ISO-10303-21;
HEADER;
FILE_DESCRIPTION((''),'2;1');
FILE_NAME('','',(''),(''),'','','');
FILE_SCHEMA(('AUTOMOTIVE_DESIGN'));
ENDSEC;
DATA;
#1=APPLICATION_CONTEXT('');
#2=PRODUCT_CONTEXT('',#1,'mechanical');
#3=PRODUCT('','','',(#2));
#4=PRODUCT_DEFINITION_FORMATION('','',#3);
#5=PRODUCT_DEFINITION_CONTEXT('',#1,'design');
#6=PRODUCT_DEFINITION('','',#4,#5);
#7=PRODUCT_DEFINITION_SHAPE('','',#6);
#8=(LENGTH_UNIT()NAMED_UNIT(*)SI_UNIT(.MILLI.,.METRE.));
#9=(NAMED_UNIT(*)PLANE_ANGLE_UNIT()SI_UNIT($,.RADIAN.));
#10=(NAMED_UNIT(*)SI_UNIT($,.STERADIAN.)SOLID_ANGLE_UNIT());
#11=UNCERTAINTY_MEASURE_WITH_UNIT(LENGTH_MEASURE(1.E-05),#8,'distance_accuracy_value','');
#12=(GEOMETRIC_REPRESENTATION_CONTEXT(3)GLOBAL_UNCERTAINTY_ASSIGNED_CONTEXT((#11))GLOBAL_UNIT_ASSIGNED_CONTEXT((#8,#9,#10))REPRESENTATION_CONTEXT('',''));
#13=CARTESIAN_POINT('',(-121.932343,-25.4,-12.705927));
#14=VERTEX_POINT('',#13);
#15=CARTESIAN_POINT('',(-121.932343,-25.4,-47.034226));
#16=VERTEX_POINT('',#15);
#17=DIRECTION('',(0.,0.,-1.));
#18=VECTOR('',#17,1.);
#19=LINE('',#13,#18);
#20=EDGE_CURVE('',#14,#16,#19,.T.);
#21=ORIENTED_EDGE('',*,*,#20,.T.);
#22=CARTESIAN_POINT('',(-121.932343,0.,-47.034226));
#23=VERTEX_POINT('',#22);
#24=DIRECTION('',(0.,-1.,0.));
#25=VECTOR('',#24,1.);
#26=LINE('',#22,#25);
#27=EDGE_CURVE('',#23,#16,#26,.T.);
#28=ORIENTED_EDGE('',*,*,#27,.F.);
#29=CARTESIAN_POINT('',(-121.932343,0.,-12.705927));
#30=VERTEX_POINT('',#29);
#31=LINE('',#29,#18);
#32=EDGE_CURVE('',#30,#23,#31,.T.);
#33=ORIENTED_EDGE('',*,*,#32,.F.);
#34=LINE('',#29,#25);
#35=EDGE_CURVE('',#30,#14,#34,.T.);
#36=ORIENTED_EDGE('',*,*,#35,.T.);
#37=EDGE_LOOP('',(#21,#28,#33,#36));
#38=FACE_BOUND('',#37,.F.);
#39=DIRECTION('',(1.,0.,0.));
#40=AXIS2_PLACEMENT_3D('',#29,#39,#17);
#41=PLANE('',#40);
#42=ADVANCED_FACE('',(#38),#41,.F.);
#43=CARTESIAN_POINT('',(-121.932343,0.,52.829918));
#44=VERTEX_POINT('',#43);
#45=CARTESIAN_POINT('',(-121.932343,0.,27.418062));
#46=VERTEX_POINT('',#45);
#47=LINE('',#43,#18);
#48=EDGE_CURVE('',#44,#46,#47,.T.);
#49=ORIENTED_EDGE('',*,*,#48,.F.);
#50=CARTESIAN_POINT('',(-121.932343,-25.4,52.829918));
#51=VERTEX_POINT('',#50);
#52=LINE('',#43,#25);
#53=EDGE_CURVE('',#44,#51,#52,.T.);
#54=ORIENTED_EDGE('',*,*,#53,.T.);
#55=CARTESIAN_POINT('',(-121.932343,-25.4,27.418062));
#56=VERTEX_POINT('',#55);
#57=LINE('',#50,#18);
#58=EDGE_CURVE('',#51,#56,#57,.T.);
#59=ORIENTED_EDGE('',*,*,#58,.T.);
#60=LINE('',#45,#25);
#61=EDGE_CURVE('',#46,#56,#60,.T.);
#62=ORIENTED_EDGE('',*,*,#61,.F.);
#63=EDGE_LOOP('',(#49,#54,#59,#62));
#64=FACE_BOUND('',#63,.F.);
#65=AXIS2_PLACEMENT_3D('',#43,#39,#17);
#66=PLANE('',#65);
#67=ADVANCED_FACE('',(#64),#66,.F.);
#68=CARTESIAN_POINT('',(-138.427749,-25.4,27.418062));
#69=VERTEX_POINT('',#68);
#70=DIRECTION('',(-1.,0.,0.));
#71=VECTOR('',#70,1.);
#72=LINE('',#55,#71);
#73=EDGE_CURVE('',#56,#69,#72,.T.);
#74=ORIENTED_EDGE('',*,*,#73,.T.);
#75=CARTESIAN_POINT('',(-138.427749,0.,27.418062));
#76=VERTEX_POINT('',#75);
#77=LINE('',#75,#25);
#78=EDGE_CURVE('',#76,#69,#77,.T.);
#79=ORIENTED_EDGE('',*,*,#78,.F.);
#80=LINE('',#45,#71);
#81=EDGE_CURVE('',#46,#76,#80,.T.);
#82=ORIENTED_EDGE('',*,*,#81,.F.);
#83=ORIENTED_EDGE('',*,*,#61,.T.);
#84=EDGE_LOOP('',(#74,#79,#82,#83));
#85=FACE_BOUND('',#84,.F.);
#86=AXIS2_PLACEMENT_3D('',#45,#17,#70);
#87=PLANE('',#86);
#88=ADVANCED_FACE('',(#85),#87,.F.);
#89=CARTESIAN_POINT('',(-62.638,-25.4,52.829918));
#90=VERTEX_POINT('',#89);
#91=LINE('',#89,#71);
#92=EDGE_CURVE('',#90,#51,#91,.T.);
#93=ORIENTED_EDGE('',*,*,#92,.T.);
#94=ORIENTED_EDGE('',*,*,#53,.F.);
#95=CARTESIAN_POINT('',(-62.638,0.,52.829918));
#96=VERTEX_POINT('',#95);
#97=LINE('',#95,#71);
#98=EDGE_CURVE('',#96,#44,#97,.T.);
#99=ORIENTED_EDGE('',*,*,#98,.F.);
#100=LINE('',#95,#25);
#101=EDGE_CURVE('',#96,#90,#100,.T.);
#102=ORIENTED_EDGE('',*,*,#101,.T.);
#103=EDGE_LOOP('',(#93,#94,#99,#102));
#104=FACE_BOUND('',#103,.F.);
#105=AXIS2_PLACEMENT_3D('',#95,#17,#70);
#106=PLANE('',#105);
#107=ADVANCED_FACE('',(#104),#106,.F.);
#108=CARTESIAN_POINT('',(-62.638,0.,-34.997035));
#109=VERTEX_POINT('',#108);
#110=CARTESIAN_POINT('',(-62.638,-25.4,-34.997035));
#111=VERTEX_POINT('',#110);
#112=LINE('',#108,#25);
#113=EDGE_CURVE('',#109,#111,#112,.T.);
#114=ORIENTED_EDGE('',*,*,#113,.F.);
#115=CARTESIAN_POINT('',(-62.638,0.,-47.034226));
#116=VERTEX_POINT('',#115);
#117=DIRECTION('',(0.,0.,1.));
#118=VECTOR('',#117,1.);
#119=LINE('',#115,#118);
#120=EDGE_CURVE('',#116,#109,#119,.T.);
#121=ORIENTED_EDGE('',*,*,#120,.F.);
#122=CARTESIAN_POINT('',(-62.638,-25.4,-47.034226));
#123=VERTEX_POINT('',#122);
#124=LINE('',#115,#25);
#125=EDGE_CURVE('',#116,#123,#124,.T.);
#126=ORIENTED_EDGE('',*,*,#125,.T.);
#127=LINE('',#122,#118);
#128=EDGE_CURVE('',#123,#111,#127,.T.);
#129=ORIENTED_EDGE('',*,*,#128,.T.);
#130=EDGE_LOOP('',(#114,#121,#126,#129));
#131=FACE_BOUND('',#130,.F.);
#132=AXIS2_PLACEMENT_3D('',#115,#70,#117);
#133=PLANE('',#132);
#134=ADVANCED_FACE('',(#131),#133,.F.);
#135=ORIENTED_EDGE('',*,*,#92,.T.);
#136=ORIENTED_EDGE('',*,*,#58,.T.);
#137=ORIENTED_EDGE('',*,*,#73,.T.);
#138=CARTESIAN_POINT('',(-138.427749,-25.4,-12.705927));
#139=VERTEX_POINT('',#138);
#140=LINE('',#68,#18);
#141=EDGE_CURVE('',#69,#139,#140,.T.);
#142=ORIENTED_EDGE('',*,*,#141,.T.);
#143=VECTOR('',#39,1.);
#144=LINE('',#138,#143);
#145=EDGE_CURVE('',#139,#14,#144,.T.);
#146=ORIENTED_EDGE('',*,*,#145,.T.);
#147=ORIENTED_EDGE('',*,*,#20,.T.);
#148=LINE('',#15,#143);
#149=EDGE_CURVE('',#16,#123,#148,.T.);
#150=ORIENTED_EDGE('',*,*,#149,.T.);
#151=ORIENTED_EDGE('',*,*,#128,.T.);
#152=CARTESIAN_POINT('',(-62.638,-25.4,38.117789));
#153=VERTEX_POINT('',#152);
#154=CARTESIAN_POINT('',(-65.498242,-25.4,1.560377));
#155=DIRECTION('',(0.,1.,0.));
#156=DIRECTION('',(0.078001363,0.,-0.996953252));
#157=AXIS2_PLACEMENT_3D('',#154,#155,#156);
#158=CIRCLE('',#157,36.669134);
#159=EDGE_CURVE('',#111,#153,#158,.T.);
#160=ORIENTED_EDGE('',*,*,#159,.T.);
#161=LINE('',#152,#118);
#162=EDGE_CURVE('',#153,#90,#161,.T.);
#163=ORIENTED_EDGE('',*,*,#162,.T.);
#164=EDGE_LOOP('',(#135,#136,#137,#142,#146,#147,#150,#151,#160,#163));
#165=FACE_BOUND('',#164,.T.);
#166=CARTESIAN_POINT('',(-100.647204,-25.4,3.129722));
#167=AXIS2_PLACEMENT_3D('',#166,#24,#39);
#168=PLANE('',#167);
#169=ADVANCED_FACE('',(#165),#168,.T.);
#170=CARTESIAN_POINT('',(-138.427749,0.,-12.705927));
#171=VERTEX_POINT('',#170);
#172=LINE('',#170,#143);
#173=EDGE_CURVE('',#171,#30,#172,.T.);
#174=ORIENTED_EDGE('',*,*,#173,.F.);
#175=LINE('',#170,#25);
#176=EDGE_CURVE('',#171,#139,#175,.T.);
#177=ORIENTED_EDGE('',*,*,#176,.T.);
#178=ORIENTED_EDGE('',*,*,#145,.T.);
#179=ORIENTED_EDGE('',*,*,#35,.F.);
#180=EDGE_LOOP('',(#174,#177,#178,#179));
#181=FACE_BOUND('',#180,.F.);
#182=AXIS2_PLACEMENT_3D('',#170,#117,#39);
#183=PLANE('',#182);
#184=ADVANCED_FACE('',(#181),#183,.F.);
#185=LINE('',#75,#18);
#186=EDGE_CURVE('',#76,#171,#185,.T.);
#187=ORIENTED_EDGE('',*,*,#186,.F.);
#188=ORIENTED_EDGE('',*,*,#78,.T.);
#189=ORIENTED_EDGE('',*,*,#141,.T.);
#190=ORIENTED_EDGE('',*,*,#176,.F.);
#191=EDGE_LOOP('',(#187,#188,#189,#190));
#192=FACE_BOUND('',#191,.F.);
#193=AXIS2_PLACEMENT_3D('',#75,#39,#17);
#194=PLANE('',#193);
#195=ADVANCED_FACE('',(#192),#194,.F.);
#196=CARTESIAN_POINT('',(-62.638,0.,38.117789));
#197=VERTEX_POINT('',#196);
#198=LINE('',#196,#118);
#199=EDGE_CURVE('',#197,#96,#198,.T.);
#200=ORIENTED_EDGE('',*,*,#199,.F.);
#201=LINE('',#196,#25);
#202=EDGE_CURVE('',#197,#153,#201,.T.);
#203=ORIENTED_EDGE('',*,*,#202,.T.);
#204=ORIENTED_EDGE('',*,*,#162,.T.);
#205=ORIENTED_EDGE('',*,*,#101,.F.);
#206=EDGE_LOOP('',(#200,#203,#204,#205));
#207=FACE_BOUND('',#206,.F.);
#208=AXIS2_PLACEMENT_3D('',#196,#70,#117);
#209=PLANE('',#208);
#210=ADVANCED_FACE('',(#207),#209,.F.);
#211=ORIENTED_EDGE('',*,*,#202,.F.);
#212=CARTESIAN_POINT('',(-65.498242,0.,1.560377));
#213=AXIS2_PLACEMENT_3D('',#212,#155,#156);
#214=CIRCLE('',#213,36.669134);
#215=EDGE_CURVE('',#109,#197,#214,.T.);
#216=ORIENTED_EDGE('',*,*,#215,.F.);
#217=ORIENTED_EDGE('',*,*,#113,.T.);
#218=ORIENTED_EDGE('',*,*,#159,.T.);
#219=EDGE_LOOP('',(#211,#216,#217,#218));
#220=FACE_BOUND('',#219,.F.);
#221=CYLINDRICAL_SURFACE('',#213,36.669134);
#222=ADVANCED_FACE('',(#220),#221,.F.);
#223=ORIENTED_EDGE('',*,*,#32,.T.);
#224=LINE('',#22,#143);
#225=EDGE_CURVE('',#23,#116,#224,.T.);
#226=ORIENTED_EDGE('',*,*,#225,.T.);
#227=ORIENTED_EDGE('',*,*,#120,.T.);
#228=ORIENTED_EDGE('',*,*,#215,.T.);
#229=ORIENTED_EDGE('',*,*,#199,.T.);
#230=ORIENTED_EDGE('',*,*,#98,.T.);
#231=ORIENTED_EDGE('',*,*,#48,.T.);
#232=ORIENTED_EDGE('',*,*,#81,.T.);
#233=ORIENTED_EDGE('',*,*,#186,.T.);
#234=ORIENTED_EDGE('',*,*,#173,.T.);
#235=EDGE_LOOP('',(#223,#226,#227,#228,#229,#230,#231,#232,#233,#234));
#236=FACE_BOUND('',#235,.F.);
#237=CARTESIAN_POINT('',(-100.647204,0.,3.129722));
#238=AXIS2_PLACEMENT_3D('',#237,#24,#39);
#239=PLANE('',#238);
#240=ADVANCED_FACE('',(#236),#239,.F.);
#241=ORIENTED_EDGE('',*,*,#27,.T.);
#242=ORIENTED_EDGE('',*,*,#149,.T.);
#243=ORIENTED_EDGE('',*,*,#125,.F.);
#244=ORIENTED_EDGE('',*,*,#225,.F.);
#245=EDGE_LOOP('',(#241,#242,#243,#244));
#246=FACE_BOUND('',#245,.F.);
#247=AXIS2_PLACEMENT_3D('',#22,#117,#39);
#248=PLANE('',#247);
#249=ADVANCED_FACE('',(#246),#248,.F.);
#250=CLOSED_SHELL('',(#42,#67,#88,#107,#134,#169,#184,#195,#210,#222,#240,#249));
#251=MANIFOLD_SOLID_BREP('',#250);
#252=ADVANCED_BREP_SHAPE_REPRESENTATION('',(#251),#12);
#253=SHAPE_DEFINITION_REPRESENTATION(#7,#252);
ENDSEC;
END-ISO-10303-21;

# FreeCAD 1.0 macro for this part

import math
import FreeCAD as App
import Part
import Sketcher

V = App.Vector
Q = App.Units.Quantity

doc = App.newDocument("Part")
body = doc.addObject("PartDesign::Body", "Body")

sketch1 = body.newObject("Sketcher::SketchObject", "Sketch")
sketch1.AttachmentSupport = (doc.getObject("XZ_Plane"), [""])
sketch1.MapMode = "FlatFace"
sketch1.addGeometry([
    Part.LineSegment(V(-121.932343, -12.705927, 0), V(-121.932343, -47.034226, 0)),
    Part.LineSegment(V(-121.932343, -47.034226, 0), V(-62.638, -47.034226, 0)),
    Part.LineSegment(V(-62.638, -47.034226, 0), V(-62.638, -34.997035, 0)),
    Part.ArcOfCircle(Part.Circle(V(-65.498242, 1.560377, 0), V(0, 0, 1), 36.669134), math.radians(85.526307), math.radians(274.473693)),
    Part.LineSegment(V(-62.638, 38.117789, 0), V(-62.638, 52.829918, 0)),
    Part.LineSegment(V(-62.638, 52.829918, 0), V(-121.932343, 52.829918, 0)),
    Part.LineSegment(V(-121.932343, 52.829918, 0), V(-121.932343, 27.418062, 0)),
    Part.LineSegment(V(-121.932343, 27.418062, 0), V(-138.427749, 27.418062, 0)),
    Part.LineSegment(V(-138.427749, 27.418062, 0), V(-138.427749, -12.705927, 0)),
    Part.LineSegment(V(-138.427749, -12.705927, 0), V(-121.932343, -12.705927, 0)),
], False)
sketch1.addConstraint([
    Sketcher.Constraint("Coincident", 0, 2, 1, 1),
    Sketcher.Constraint("Coincident", 1, 2, 2, 1),
    Sketcher.Constraint("Coincident", 2, 2, 3, 2),
    Sketcher.Constraint("Coincident", 3, 1, 4, 1),
    Sketcher.Constraint("Coincident", 4, 2, 5, 1),
    Sketcher.Constraint("Coincident", 5, 2, 6, 1),
    Sketcher.Constraint("Coincident", 6, 2, 7, 1),
    Sketcher.Constraint("Coincident", 7, 2, 8, 1),
    Sketcher.Constraint("Coincident", 8, 2, 9, 1),
    Sketcher.Constraint("Coincident", 9, 2, 0, 1),
    Sketcher.Constraint("Vertical", 0),
    Sketcher.Constraint("Horizontal", 1),
    Sketcher.Constraint("Vertical", 2),
    Sketcher.Constraint("Vertical", 4),
    Sketcher.Constraint("Horizontal", 5),
    Sketcher.Constraint("Vertical", 6),
    Sketcher.Constraint("Horizontal", 7),
    Sketcher.Constraint("Vertical", 8),
    Sketcher.Constraint("Horizontal", 9),
    Sketcher.Constraint("Vertical", 2, 2, 3, 1),
    Sketcher.Constraint("Vertical", 0, 2, 5, 2),
    Sketcher.Constraint("DistanceY", 0, 2, 0, 1, Q("34.328299 mm")),
    Sketcher.Constraint("Radius", 3, Q("36.669134 mm")),
    Sketcher.Constraint("DistanceY", 2, 1, 2, 2, Q("12.037191 mm")),
    Sketcher.Constraint("DistanceY", 4, 1, 4, 2, Q("14.712129 mm")),
    Sketcher.Constraint("DistanceY", 8, 2, 8, 1, Q("40.123989 mm")),
    Sketcher.Constraint("DistanceX", 1, 2, -1, 1, Q("62.638 mm")),
    Sketcher.Constraint("DistanceX", 0, 2, 3, 3, Q("56.434101 mm")),
    Sketcher.Constraint("DistanceX", 1, 1, 1, 2, Q("59.294343 mm")),
    Sketcher.Constraint("DistanceX", 7, 2, 7, 1, Q("16.495406 mm")),
    Sketcher.Constraint("DistanceY", -1, 1, 3, 1, Q("38.117789 mm")),
])
pad1 = body.newObject("PartDesign::Pad", "Pad")
pad1.Profile = sketch1
pad1.Length = Q("1 in")

doc.recompute()
